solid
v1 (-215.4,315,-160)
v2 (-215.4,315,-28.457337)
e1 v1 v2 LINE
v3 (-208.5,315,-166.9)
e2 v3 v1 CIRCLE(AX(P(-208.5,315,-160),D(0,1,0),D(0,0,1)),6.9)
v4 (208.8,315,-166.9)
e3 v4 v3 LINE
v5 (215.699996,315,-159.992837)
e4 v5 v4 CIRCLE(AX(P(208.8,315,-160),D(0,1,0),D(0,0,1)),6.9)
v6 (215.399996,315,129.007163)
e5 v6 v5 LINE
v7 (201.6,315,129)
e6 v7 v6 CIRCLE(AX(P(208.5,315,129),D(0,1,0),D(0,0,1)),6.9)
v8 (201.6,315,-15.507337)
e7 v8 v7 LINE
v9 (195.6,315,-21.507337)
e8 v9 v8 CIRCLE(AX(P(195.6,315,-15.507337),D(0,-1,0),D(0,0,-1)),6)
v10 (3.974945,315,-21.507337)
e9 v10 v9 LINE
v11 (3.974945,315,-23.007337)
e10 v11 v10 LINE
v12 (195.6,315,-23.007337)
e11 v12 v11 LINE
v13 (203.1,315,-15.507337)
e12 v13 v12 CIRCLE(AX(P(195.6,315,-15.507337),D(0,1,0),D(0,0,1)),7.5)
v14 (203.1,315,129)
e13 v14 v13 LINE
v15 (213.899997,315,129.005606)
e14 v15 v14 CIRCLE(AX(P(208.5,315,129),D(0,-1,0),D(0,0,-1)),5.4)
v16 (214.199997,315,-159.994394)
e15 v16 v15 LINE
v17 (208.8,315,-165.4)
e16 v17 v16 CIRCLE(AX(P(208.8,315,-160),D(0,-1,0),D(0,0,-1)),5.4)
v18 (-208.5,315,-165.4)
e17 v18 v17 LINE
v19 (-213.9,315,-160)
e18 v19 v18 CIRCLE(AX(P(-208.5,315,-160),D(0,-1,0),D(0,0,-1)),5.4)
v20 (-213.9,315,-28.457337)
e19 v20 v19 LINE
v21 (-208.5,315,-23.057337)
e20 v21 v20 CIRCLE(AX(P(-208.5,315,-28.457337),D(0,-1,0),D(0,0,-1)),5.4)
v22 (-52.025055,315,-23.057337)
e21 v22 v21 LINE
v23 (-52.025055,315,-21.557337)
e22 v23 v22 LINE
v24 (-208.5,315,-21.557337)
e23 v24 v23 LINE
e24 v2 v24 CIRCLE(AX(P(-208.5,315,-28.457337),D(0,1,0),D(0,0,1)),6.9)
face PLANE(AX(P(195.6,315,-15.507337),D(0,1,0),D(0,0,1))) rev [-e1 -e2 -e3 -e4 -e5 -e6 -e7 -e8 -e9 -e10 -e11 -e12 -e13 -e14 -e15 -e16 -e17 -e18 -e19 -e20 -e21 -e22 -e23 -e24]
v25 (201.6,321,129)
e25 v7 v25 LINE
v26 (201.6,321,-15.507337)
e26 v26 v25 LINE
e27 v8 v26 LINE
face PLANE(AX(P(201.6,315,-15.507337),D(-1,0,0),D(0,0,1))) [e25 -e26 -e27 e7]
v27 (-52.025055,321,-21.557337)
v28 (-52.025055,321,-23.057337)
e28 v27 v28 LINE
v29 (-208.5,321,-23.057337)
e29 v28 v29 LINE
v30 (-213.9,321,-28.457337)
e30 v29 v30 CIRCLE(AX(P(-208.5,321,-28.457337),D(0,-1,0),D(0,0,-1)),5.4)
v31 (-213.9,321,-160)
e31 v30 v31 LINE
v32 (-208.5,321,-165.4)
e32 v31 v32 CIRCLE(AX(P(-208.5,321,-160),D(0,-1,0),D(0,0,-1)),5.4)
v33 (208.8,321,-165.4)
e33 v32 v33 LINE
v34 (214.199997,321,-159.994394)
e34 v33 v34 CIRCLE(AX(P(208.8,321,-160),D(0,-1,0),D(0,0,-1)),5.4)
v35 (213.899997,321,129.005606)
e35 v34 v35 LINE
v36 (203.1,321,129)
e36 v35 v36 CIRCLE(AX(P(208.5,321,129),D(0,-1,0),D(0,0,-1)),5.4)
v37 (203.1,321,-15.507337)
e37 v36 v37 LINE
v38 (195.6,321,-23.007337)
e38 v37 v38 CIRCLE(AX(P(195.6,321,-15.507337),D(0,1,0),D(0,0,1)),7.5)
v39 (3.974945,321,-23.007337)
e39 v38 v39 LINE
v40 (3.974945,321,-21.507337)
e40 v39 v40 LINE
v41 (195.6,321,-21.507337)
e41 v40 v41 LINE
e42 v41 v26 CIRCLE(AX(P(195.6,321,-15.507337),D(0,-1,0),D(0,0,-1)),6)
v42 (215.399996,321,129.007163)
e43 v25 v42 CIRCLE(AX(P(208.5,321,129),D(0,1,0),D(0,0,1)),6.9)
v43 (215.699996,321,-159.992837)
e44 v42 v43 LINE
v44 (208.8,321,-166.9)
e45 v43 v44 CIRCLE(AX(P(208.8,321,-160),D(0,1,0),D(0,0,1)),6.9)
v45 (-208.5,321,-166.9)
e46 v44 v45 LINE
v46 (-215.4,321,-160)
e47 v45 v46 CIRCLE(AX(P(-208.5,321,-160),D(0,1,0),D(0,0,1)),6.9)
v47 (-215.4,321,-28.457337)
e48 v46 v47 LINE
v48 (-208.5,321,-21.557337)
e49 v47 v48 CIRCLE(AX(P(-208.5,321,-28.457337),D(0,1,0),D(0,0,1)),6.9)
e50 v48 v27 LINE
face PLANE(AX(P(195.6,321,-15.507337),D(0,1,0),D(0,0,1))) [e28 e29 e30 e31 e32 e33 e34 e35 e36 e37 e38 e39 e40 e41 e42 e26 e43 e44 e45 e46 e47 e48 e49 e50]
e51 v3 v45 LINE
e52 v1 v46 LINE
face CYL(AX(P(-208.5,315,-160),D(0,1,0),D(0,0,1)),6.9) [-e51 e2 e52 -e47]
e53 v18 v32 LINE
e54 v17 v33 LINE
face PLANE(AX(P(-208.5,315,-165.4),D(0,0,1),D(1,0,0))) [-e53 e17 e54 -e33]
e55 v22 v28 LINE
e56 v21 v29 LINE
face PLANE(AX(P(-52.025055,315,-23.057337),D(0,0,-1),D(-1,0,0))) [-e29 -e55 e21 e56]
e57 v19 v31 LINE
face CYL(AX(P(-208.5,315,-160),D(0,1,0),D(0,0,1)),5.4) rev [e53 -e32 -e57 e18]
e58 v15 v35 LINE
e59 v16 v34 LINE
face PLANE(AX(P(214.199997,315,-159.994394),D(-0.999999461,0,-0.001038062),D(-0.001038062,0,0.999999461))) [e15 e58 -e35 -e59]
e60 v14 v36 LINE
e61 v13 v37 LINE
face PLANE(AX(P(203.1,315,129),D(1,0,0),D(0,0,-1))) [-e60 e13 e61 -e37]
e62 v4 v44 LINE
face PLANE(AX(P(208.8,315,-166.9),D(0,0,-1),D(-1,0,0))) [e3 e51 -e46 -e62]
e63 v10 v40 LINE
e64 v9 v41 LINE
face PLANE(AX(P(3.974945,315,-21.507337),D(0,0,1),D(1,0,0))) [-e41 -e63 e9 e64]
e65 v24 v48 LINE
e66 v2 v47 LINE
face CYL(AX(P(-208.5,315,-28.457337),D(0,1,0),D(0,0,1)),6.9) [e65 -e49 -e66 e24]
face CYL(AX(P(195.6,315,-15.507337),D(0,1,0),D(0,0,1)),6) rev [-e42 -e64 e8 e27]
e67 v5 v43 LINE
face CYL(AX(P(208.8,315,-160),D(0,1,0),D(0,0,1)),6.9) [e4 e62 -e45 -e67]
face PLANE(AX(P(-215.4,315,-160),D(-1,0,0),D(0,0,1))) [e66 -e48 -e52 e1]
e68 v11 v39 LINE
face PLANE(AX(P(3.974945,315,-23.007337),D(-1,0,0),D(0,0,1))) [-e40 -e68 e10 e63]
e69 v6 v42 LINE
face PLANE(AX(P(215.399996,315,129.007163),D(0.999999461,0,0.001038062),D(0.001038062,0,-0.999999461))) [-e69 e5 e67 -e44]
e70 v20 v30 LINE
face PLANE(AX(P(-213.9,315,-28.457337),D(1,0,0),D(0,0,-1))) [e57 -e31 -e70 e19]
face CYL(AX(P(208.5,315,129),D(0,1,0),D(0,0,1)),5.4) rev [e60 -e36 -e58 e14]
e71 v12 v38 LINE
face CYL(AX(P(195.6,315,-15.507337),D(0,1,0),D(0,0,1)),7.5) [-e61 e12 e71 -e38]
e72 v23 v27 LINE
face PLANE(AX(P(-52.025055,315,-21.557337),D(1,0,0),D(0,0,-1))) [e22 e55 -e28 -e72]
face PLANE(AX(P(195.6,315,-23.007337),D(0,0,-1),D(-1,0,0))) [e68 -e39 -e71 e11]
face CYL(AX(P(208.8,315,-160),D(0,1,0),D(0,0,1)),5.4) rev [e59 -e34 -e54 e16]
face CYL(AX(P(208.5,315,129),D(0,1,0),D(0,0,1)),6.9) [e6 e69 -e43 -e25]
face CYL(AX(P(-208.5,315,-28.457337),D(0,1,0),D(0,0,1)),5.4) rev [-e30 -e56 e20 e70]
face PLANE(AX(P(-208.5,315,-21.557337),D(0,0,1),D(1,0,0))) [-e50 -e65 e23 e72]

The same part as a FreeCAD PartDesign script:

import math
import FreeCAD as App
import Part
import Sketcher

doc = App.newDocument("Part")
body = doc.addObject("PartDesign::Body", "Body")

# Sketch on XZ plane
sketch1 = doc.addObject("Sketcher::SketchObject", "Sketch")
body.addObject(sketch1)
sketch1.AttachmentSupport = (doc.XZ_Plane, [""])
sketch1.MapMode = "FlatFace"
sketch1.AttachmentOffset = App.Placement(App.Vector(0, 0, -321), App.Rotation())
sketch1.addGeometry(Part.LineSegment(App.Vector(195.6, -23, 0), App.Vector(4, -23, 0)), False)
sketch1.addGeometry(Part.LineSegment(App.Vector(4, -23, 0), App.Vector(4, -21.5, 0)), False)
sketch1.addGeometry(Part.LineSegment(App.Vector(4, -21.5, 0), App.Vector(195.6, -21.5, 0)), False)
sketch1.addGeometry(Part.ArcOfCircle(Part.Circle(App.Vector(195.6, -15.5, 0), App.Vector(0, 0, 1), 6), math.radians(-90), math.radians(0)), False)
sketch1.addGeometry(Part.LineSegment(App.Vector(201.6, -15.5, 0), App.Vector(201.6, 129, 0)), False)
sketch1.addGeometry(Part.ArcOfCircle(Part.Circle(App.Vector(208.5, 129, 0), App.Vector(0, 0, 1), 6.9), math.radians(0), math.radians(180)), False)
sketch1.addGeometry(Part.LineSegment(App.Vector(215.4, 129, 0), App.Vector(215.7, -160, 0)), False)
sketch1.addGeometry(Part.ArcOfCircle(Part.Circle(App.Vector(208.8, -160, 0), App.Vector(0, 0, 1), 6.9), math.radians(-90), math.radians(0)), False)
sketch1.addGeometry(Part.LineSegment(App.Vector(208.8, -166.9, 0), App.Vector(-208.5, -166.9, 0)), False)
sketch1.addGeometry(Part.ArcOfCircle(Part.Circle(App.Vector(-208.5, -160, 0), App.Vector(0, 0, 1), 6.9), math.radians(-180), math.radians(-90)), False)
sketch1.addGeometry(Part.LineSegment(App.Vector(-215.4, -160, 0), App.Vector(-215.4, -28.5, 0)), False)
sketch1.addGeometry(Part.ArcOfCircle(Part.Circle(App.Vector(-208.5, -28.5, 0), App.Vector(0, 0, 1), 6.9), math.radians(90), math.radians(180)), False)
sketch1.addGeometry(Part.LineSegment(App.Vector(-208.5, -21.6, 0), App.Vector(-52, -21.6, 0)), False)
sketch1.addGeometry(Part.LineSegment(App.Vector(-52, -21.6, 0), App.Vector(-52, -23.1, 0)), False)
sketch1.addGeometry(Part.LineSegment(App.Vector(-52, -23.1, 0), App.Vector(-208.5, -23.1, 0)), False)
sketch1.addGeometry(Part.ArcOfCircle(Part.Circle(App.Vector(-208.5, -28.5, 0), App.Vector(0, 0, 1), 5.4), math.radians(90), math.radians(180)), False)
sketch1.addGeometry(Part.LineSegment(App.Vector(-213.9, -28.5, 0), App.Vector(-213.9, -160, 0)), False)
sketch1.addGeometry(Part.ArcOfCircle(Part.Circle(App.Vector(-208.5, -160, 0), App.Vector(0, 0, 1), 5.4), math.radians(-180), math.radians(-90)), False)
sketch1.addGeometry(Part.LineSegment(App.Vector(-208.5, -165.4, 0), App.Vector(208.8, -165.4, 0)), False)
sketch1.addGeometry(Part.ArcOfCircle(Part.Circle(App.Vector(208.8, -160, 0), App.Vector(0, 0, 1), 5.4), math.radians(-90), math.radians(0)), False)
sketch1.addGeometry(Part.LineSegment(App.Vector(214.2, -160, 0), App.Vector(213.9, 129, 0)), False)
sketch1.addGeometry(Part.ArcOfCircle(Part.Circle(App.Vector(208.5, 129, 0), App.Vector(0, 0, 1), 5.4), math.radians(0), math.radians(180)), False)
sketch1.addGeometry(Part.LineSegment(App.Vector(203.1, 129, 0), App.Vector(203.1, -15.5, 0)), False)
sketch1.addGeometry(Part.ArcOfCircle(Part.Circle(App.Vector(195.6, -15.5, 0), App.Vector(0, 0, 1), 7.5), math.radians(-90), math.radians(0)), False)
sketch1.addConstraint(Sketcher.Constraint("Coincident", 0, 2, 1, 1))
sketch1.addConstraint(Sketcher.Constraint("Coincident", 1, 2, 2, 1))
sketch1.addConstraint(Sketcher.Constraint("Tangent", 2, 2, 3, 1))
sketch1.addConstraint(Sketcher.Constraint("Tangent", 3, 2, 4, 1))
sketch1.addConstraint(Sketcher.Constraint("Tangent", 4, 2, 5, 2))
sketch1.addConstraint(Sketcher.Constraint("Tangent", 5, 1, 6, 1))
sketch1.addConstraint(Sketcher.Constraint("Tangent", 6, 2, 7, 2))
sketch1.addConstraint(Sketcher.Constraint("Tangent", 7, 1, 8, 1))
sketch1.addConstraint(Sketcher.Constraint("Tangent", 8, 2, 9, 2))
sketch1.addConstraint(Sketcher.Constraint("Tangent", 9, 1, 10, 1))
sketch1.addConstraint(Sketcher.Constraint("Tangent", 10, 2, 11, 2))
sketch1.addConstraint(Sketcher.Constraint("Tangent", 11, 1, 12, 1))
sketch1.addConstraint(Sketcher.Constraint("Coincident", 12, 2, 13, 1))
sketch1.addConstraint(Sketcher.Constraint("Coincident", 13, 2, 14, 1))
sketch1.addConstraint(Sketcher.Constraint("Tangent", 14, 2, 15, 1))
sketch1.addConstraint(Sketcher.Constraint("Tangent", 15, 2, 16, 1))
sketch1.addConstraint(Sketcher.Constraint("Tangent", 16, 2, 17, 1))
sketch1.addConstraint(Sketcher.Constraint("Tangent", 17, 2, 18, 1))
sketch1.addConstraint(Sketcher.Constraint("Tangent", 18, 2, 19, 1))
sketch1.addConstraint(Sketcher.Constraint("Tangent", 19, 2, 20, 1))
sketch1.addConstraint(Sketcher.Constraint("Tangent", 20, 2, 21, 1))
sketch1.addConstraint(Sketcher.Constraint("Tangent", 21, 2, 22, 1))
sketch1.addConstraint(Sketcher.Constraint("Tangent", 22, 2, 23, 2))
sketch1.addConstraint(Sketcher.Constraint("Tangent", 23, 1, 0, 1))
sketch1.addConstraint(Sketcher.Constraint("Horizontal", 0))
sketch1.addConstraint(Sketcher.Constraint("Vertical", 1))
sketch1.addConstraint(Sketcher.Constraint("Horizontal", 2))
sketch1.addConstraint(Sketcher.Constraint("Vertical", 4))
sketch1.addConstraint(Sketcher.Constraint("Horizontal", 8))
sketch1.addConstraint(Sketcher.Constraint("Vertical", 10))
sketch1.addConstraint(Sketcher.Constraint("Horizontal", 12))
sketch1.addConstraint(Sketcher.Constraint("Vertical", 13))
sketch1.addConstraint(Sketcher.Constraint("Horizontal", 14))
sketch1.addConstraint(Sketcher.Constraint("Vertical", 16))
sketch1.addConstraint(Sketcher.Constraint("Horizontal", 18))
sketch1.addConstraint(Sketcher.Constraint("Vertical", 22))
sketch1.addConstraint(Sketcher.Constraint("Coincident", 15, 3, 11, 3))
sketch1.addConstraint(Sketcher.Constraint("Coincident", 17, 3, 9, 3))
sketch1.addConstraint(Sketcher.Constraint("Coincident", 19, 3, 7, 3))
sketch1.addConstraint(Sketcher.Constraint("Coincident", 21, 3, 5, 3))
sketch1.addConstraint(Sketcher.Constraint("Coincident", 23, 3, 3, 3))
sketch1.addConstraint(Sketcher.Constraint("Equal", 5, 7))
sketch1.addConstraint(Sketcher.Constraint("Equal", 7, 9))
sketch1.addConstraint(Sketcher.Constraint("Equal", 9, 11))
sketch1.addConstraint(Sketcher.Constraint("Equal", 19, 21))
sketch1.addConstraint(Sketcher.Constraint("Radius", 3, 6.0))
sketch1.addConstraint(Sketcher.Constraint("Radius", 5, 6.9))
sketch1.addConstraint(Sketcher.Constraint("Radius", 15, 5.4))
sketch1.addConstraint(Sketcher.Constraint("DistanceX", 8, 2, 8, 1, 417.3))
sketch1.addConstraint(Sketcher.Constraint("DistanceY", -1, 1, 5, 3, 129.0))
sketch1.addConstraint(Sketcher.Constraint("DistanceY", 7, 3, -1, 1, 160.0))
sketch1.addConstraint(Sketcher.Constraint("DistanceX", 9, 3, 5, 3, 417.0))
sketch1.addConstraint(Sketcher.Constraint("DistanceX", 12, 2, 1, 2, 56.0))
sketch1.addConstraint(Sketcher.Constraint("DistanceX", -1, 1, 3, 3, 195.6))
sketch1.addConstraint(Sketcher.Constraint("DistanceY", 11, 3, 3, 3, 12.95))
sketch1.addConstraint(Sketcher.Constraint("DistanceY", 3, 2, 5, 1, 144.5145))
sketch1.addConstraint(Sketcher.Constraint("DistanceX", 0, 2, 0, 1, 191.625055))
pad1 = doc.addObject("PartDesign::Pad", "Pad")
body.addObject(pad1)
pad1.Profile = sketch1
pad1.Length = 6

doc.recompute()
